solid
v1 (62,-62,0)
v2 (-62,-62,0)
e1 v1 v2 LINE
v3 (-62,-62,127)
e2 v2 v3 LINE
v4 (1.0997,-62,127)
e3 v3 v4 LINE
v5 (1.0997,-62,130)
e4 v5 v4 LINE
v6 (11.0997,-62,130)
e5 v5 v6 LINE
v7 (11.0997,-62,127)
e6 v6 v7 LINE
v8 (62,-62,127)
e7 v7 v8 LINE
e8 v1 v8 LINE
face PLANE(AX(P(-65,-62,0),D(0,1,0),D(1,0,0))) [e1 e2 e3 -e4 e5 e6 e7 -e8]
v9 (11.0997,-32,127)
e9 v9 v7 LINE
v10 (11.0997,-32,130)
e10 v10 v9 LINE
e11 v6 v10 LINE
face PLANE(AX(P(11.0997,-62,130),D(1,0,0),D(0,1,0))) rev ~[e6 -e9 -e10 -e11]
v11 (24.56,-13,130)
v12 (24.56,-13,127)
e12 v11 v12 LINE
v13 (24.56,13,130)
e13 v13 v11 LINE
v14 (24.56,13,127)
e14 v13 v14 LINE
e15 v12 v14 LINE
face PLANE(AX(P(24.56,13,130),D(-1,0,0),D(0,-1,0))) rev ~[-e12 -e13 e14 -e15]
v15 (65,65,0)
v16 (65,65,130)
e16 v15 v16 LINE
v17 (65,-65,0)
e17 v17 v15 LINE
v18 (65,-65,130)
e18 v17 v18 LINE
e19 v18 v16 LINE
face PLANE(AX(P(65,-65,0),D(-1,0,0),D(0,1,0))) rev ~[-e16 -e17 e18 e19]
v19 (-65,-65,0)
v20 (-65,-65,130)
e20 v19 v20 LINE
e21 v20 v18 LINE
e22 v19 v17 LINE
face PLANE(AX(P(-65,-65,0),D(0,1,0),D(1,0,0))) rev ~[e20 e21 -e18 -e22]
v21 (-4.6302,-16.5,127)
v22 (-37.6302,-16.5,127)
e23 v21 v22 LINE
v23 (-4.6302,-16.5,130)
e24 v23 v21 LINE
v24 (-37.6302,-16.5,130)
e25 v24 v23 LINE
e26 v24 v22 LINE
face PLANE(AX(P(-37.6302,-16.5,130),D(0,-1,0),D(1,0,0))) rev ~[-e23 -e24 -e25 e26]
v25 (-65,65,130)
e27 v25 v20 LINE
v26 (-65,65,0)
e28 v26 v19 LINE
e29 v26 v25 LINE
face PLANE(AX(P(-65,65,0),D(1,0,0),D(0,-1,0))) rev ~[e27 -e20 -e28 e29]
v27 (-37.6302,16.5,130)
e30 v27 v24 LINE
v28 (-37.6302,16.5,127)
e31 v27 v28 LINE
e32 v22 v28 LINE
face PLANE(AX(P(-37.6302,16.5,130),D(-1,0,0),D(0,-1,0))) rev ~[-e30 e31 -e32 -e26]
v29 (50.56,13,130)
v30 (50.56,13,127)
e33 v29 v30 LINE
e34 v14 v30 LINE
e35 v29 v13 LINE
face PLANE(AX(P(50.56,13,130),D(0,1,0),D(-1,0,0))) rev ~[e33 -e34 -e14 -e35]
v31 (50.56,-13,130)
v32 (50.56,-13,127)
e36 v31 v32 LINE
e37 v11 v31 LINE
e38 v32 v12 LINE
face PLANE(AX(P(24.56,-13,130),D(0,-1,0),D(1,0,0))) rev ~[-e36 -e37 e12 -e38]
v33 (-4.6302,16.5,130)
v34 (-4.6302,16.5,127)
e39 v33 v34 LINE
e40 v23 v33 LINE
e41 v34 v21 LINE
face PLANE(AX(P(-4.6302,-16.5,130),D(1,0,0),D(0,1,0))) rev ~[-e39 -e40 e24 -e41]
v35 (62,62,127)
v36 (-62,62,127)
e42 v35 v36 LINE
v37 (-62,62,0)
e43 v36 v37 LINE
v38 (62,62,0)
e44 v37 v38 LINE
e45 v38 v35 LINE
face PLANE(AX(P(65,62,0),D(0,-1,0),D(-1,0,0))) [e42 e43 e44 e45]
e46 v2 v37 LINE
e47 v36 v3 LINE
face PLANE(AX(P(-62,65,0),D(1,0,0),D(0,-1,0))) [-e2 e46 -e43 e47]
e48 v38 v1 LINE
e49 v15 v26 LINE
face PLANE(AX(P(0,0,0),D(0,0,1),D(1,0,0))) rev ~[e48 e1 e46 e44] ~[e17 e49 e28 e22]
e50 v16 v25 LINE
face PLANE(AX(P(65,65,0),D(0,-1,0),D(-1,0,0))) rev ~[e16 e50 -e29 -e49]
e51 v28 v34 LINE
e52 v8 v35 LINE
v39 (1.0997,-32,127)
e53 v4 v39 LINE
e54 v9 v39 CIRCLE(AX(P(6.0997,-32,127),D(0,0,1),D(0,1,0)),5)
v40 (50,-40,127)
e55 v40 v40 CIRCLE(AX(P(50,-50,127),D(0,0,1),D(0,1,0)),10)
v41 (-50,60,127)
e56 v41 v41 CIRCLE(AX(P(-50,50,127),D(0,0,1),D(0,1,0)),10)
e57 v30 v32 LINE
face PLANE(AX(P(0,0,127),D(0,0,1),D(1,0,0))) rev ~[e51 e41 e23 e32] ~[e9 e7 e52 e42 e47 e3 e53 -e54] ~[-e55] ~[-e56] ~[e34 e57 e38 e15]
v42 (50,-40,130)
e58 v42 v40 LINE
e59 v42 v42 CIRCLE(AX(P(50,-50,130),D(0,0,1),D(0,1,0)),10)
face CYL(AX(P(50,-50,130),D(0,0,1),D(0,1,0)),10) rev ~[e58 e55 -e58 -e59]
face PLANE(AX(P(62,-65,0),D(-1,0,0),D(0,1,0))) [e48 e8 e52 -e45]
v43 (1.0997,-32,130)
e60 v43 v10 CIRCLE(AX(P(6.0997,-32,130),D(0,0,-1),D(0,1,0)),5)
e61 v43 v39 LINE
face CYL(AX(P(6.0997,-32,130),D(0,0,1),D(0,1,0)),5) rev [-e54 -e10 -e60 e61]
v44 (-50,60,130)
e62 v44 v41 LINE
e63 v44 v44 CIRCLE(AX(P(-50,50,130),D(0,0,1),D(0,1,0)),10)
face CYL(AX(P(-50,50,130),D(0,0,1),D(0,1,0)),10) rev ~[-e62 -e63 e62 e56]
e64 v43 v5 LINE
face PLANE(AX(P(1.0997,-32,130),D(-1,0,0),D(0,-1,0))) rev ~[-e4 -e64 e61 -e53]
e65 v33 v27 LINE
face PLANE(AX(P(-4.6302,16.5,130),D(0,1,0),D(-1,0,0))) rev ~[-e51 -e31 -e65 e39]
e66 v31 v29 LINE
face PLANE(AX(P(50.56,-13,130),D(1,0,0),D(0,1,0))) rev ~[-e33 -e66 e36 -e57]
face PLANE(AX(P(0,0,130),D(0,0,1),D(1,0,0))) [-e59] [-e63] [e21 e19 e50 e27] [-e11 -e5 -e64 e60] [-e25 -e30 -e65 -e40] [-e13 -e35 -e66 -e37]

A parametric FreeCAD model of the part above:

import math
import FreeCAD as App
import Part
import Sketcher


def faces_at(feature, points):
    """Names of the faces that lie closest to the given points."""
    faces = feature.Shape.Faces
    near = lambda p: min(range(len(faces)), key=lambda i: faces[i].distToShape(Part.Vertex(*p))[0])
    return sorted({f"Face{near(p) + 1}" for p in points})


def add_polygon(sketch, points):
    """Adds a closed chain of lines whose ends are joined by coincident constraints."""
    first, n = sketch.GeometryCount, len(points)
    for a, b in zip(points, points[1:] + points[:1]):
        sketch.addGeometry(Part.LineSegment(App.Vector(*a, 0), App.Vector(*b, 0)), False)
    for i in range(n):
        sketch.addConstraint(Sketcher.Constraint("Coincident", first + i, 2, first + (i + 1) % n, 1))

doc = App.newDocument("Part")
body = doc.addObject("PartDesign::Body", "Body")

# Sketch on XY plane
sketch1 = body.newObject("Sketcher::SketchObject", "Sketch")
sketch1.AttachmentSupport = (doc.getObject("XY_Plane"), [""])
sketch1.MapMode = "FlatFace"
add_polygon(sketch1, [(65, 65), (-65, 65), (-65, -65), (65, -65)])  # lines 0-3
sketch1.addConstraint([
    Sketcher.Constraint("Horizontal", 0),
    Sketcher.Constraint("Vertical", 1),
    Sketcher.Constraint("Horizontal", 2),
    Sketcher.Constraint("Vertical", 3),
    Sketcher.Constraint("Symmetric", 0, 2, 2, 2, -1, 1),
    Sketcher.Constraint("Equal", 2, 1),
    Sketcher.Constraint("DistanceX", 0, 2, 0, 1, 130.0),
])
pad1 = body.newObject("PartDesign::Pad", "Pad")
pad1.Profile = sketch1
pad1.Length = 130
doc.recompute()

thickness = body.newObject("PartDesign::Thickness", "Thickness")
thickness.Base = (pad1, faces_at(pad1, [(-44.633, -42.033, 0)]))
thickness.Value = 3
thickness.Reversed = True
thickness.Join = "Intersection"

# Sketch on XY plane
sketch2 = body.newObject("Sketcher::SketchObject", "Sketch001")
sketch2.AttachmentSupport = (doc.getObject("XY_Plane"), [""])
sketch2.MapMode = "FlatFace"
sketch2.AttachmentOffset = App.Placement(App.Vector(0, 0, 130), App.Rotation())
add_polygon(sketch2, [(-38, 16), (-38, -16), (-5, -16), (-5, 16)])  # lines 0-3
sketch2.addGeometry(Part.Circle(App.Vector(-50, 50, 0), App.Vector(0, 0, 1), 10), False)  # 4
sketch2.addGeometry(Part.LineSegment(App.Vector(1, -62, 0), App.Vector(11, -62, 0)), False)  # 5
sketch2.addGeometry(Part.LineSegment(App.Vector(11, -62, 0), App.Vector(11, -32, 0)), False)  # 6
sketch2.addGeometry(Part.ArcOfCircle(Part.Circle(App.Vector(6, -32, 0), App.Vector(0, 0, 1), 5), math.radians(0), math.radians(180)), False)  # 7
sketch2.addGeometry(Part.LineSegment(App.Vector(1, -32, 0), App.Vector(1, -62, 0)), False)  # 8
sketch2.addGeometry(Part.Circle(App.Vector(50, -50, 0), App.Vector(0, 0, 1), 10), False)  # 9
add_polygon(sketch2, [(25, 13), (25, -13), (51, -13), (51, 13)])  # lines 10-13
sketch2.addConstraint([
    Sketcher.Constraint("Coincident", 5, 2, 6, 1),
    Sketcher.Constraint("Tangent", 6, 2, 7, 1),
    Sketcher.Constraint("Tangent", 7, 2, 8, 1),
    Sketcher.Constraint("Coincident", 8, 2, 5, 1),
    Sketcher.Constraint("Vertical", 0),
    Sketcher.Constraint("Horizontal", 1),
    Sketcher.Constraint("Vertical", 2),
    Sketcher.Constraint("Horizontal", 3),
    Sketcher.Constraint("Horizontal", 5),
    Sketcher.Constraint("Vertical", 6),
    Sketcher.Constraint("Vertical", 8),
    Sketcher.Constraint("Vertical", 10),
    Sketcher.Constraint("Horizontal", 11),
    Sketcher.Constraint("Vertical", 12),
    Sketcher.Constraint("Horizontal", 13),
    Sketcher.Constraint("Equal", 4, 9),
    Sketcher.Constraint("Symmetric", 4, 3, 9, 3, -1, 1),
    Sketcher.Constraint("Equal", 3, 0),
    Sketcher.Constraint("Equal", 13, 10),
    Sketcher.Constraint("Diameter", 4, 20.0),
    Sketcher.Constraint("Radius", 7, 5.0),
    Sketcher.Constraint("DistanceX", 1, 1, 1, 2, 33.0),
    Sketcher.Constraint("DistanceX", 11, 1, 11, 2, 26.0),
    Sketcher.Constraint("DistanceY", 6, 1, 6, 2, 30.0),
    Sketcher.Constraint("DistanceX", 4, 3, -1, 1, 50.0),
    Sketcher.Constraint("DistanceY", -1, 1, 4, 3, 50.0),
    Sketcher.Constraint("DistanceY", 7, 3, -1, 1, 32.0),
    Sketcher.Constraint("DistanceY", 10, 2, -1, 1, 13.0),
    Sketcher.Constraint("DistanceY", 0, 2, -1, 1, 16.5),
    Sketcher.Constraint("DistanceX", -1, 1, 10, 2, 24.56),
    Sketcher.Constraint("DistanceX", 0, 2, 7, 3, 43.73),
    Sketcher.Constraint("DistanceX", -1, 1, 7, 3, 6.0997),
])
pocket1 = body.newObject("PartDesign::Pocket", "Pocket")
pocket1.Profile = sketch2
pocket1.Type = "UpToFirst"

doc.recompute()
